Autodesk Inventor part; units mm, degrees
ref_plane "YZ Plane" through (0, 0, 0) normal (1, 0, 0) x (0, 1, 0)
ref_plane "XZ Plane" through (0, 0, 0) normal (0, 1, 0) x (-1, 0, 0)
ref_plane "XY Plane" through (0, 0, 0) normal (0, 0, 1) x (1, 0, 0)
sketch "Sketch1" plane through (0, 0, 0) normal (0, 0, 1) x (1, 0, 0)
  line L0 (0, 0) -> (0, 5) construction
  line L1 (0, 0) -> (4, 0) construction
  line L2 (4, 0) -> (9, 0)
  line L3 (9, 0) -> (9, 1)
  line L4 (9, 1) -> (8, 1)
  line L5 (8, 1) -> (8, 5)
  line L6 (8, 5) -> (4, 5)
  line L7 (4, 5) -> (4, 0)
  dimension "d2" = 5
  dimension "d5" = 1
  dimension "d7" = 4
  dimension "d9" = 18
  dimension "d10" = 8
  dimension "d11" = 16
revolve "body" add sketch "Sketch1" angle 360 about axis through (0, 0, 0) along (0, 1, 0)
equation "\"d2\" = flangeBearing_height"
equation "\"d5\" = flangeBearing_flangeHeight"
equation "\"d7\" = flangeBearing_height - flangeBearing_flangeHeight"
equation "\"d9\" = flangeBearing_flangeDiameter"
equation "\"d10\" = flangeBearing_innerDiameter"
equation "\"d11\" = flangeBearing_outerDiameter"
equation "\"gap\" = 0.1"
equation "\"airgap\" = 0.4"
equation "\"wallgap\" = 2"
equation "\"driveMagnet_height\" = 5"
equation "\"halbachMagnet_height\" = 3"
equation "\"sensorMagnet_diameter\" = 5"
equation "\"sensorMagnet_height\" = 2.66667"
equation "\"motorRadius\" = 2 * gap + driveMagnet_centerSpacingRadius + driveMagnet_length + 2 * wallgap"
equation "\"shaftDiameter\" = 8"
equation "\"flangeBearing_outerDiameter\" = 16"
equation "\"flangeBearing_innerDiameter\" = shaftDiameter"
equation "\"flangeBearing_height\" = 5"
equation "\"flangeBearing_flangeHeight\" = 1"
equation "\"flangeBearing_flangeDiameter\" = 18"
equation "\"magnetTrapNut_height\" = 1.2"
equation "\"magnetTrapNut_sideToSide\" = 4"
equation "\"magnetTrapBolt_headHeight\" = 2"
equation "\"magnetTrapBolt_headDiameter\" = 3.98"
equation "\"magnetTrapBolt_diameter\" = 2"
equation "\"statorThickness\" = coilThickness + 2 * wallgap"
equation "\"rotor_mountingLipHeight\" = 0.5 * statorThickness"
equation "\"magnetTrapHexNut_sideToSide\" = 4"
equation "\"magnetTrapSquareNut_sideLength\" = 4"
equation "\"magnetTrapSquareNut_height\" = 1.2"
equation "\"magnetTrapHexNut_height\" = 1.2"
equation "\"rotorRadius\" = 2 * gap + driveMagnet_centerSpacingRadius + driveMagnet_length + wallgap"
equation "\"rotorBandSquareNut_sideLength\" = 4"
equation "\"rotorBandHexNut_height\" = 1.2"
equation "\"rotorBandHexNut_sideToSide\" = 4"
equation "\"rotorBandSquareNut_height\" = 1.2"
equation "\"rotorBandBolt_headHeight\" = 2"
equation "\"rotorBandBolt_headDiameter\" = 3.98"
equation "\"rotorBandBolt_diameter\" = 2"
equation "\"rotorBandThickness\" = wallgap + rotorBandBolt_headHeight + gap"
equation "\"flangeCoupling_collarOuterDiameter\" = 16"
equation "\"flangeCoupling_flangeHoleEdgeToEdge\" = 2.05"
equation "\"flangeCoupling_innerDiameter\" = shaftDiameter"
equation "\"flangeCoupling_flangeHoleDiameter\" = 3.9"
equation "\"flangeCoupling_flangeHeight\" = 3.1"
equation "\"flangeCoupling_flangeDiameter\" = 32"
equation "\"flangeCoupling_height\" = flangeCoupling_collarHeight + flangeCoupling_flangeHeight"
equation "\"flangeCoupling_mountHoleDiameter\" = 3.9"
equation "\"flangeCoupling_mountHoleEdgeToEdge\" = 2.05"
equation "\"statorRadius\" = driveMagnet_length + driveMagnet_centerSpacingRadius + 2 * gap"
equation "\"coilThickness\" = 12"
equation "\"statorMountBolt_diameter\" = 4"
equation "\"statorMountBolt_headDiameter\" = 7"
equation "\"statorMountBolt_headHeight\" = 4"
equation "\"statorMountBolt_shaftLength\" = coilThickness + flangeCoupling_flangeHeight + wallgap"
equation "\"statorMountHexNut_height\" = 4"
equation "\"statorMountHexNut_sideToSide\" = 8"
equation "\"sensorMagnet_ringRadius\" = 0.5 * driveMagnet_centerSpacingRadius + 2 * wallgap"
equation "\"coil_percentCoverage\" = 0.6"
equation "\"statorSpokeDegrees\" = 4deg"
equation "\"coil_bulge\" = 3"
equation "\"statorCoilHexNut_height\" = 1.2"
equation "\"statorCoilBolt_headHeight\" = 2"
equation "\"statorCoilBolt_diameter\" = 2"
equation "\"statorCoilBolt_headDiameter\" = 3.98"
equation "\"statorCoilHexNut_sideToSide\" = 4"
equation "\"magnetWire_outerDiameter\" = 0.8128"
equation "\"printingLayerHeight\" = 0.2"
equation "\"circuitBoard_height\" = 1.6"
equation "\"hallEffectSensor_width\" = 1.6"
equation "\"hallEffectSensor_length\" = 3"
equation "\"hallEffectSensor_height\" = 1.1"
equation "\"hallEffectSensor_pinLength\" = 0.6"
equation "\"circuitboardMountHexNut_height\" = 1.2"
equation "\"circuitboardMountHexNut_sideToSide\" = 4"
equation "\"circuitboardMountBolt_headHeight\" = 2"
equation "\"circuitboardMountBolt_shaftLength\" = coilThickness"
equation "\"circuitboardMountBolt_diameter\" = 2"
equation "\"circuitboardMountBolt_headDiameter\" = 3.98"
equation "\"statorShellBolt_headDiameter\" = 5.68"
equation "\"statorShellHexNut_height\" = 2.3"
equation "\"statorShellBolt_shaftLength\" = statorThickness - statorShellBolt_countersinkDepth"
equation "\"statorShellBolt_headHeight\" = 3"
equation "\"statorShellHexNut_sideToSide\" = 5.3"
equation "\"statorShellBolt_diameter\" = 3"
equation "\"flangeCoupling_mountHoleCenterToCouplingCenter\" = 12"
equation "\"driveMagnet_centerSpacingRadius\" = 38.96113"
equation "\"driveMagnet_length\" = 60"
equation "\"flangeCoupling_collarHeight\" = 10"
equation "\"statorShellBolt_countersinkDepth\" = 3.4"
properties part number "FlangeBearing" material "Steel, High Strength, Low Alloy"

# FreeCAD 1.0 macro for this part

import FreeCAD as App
import Part
import Sketcher
Q = App.Units.Quantity


def add_polygon(sketch, points):
    """Adds a closed chain of lines whose ends are joined by coincident constraints."""
    first, n = sketch.GeometryCount, len(points)
    for a, b in zip(points, points[1:] + points[:1]):
        sketch.addGeometry(Part.LineSegment(App.Vector(*a, 0), App.Vector(*b, 0)), False)
    for i in range(n):
        sketch.addConstraint(Sketcher.Constraint("Coincident", first + i, 2, first + (i + 1) % n, 1))

doc = App.newDocument("Part")
body = doc.addObject("PartDesign::Body", "Body")

# Sketch on XY plane
sketch1 = doc.addObject("Sketcher::SketchObject", "Sketch")
body.addObject(sketch1)
sketch1.AttachmentSupport = (doc.XY_Plane, [""])
sketch1.MapMode = "FlatFace"
add_polygon(sketch1, [(4, 5), (4, 0), (9, 0), (9, 1), (8, 1), (8, 5)])  # lines 0-5
sketch1.addConstraint([
    Sketcher.Constraint("Vertical", 0),
    Sketcher.Constraint("Horizontal", 1),
    Sketcher.Constraint("Vertical", 2),
    Sketcher.Constraint("Horizontal", 3),
    Sketcher.Constraint("Vertical", 4),
    Sketcher.Constraint("Horizontal", 5),
    Sketcher.Constraint("PointOnObject", 0, 2, -1),
    Sketcher.Constraint("Equal", 1, 0),
    Sketcher.Constraint("Equal", 3, 2),
    Sketcher.Constraint("DistanceX", 1, 1, 1, 2, Q("5 mm")),
    Sketcher.Constraint("DistanceX", 3, 2, 3, 1, Q("1 mm")),
    Sketcher.Constraint("DistanceX", -1, 1, 0, 2, Q("4 mm")),
])
revolution = doc.addObject("PartDesign::Revolution", "Revolution")
body.addObject(revolution)
revolution.Profile = sketch1
revolution.ReferenceAxis = (sketch1, ["V_Axis"])
revolution.Angle = 360

doc.recompute()
